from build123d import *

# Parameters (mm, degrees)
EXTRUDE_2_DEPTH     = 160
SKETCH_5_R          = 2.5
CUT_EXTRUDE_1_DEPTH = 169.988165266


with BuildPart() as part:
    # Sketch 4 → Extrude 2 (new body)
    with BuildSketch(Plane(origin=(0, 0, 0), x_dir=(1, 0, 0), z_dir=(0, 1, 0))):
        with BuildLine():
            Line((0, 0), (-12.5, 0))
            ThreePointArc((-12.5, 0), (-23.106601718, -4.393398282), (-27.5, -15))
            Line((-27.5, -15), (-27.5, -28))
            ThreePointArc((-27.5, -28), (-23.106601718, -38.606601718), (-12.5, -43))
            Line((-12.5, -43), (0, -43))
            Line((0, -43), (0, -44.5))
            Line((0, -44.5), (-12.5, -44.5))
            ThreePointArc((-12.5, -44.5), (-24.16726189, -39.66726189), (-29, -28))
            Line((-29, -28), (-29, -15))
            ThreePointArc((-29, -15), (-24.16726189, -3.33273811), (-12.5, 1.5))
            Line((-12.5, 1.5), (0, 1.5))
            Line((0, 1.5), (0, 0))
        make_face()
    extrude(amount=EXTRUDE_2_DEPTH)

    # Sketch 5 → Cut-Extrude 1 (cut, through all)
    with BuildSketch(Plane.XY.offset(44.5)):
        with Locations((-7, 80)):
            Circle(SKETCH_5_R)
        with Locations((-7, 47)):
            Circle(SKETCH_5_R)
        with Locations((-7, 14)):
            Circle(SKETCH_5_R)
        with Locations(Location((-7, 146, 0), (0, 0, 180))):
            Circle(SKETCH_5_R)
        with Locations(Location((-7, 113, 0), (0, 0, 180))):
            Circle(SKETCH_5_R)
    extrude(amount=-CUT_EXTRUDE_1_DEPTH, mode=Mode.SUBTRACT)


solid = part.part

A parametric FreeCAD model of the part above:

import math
import FreeCAD as App
import Part
import Sketcher

V = App.Vector

doc = App.newDocument("Part")
body = doc.addObject("PartDesign::Body", "Body")

# Sketch on XZ plane
sketch1 = doc.addObject("Sketcher::SketchObject", "Sketch")
body.addObject(sketch1)
sketch1.AttachmentSupport = (doc.XZ_Plane, [""])
sketch1.MapMode = "FlatFace"
sketch1.addGeometry([
    Part.LineSegment(V(-12.5, 0, 0), V(0, 0, 0)),  # 0
    Part.LineSegment(V(0, 0, 0), V(0, -1.5, 0)),  # 1
    Part.LineSegment(V(0, -1.5, 0), V(-12.5, -1.5, 0)),  # 2
    Part.ArcOfCircle(Part.Circle(V(-12.5, 15, 0), V(0, 0, 1), 16.5), math.radians(180), math.radians(270)),  # 3
    Part.LineSegment(V(-29, 15, 0), V(-29, 28, 0)),  # 4
    Part.ArcOfCircle(Part.Circle(V(-12.5, 28, 0), V(0, 0, 1), 16.5), math.radians(90), math.radians(180)),  # 5
    Part.LineSegment(V(-12.5, 44.5, 0), V(0, 44.5, 0)),  # 6
    Part.LineSegment(V(0, 44.5, 0), V(0, 43, 0)),  # 7
    Part.LineSegment(V(0, 43, 0), V(-12.5, 43, 0)),  # 8
    Part.ArcOfCircle(Part.Circle(V(-12.5, 28, 0), V(0, 0, 1), 15), math.radians(90), math.radians(180)),  # 9
    Part.LineSegment(V(-27.5, 28, 0), V(-27.5, 15, 0)),  # 10
    Part.ArcOfCircle(Part.Circle(V(-12.5, 15, 0), V(0, 0, 1), 15), math.radians(180), math.radians(270)),  # 11
], False)
sketch1.addConstraint([
    Sketcher.Constraint("Coincident", 0, 2, 1, 1),
    Sketcher.Constraint("Coincident", 1, 2, 2, 1),
    Sketcher.Constraint("Tangent", 2, 2, 3, 2),
    Sketcher.Constraint("Tangent", 3, 1, 4, 1),
    Sketcher.Constraint("Tangent", 4, 2, 5, 2),
    Sketcher.Constraint("Tangent", 5, 1, 6, 1),
    Sketcher.Constraint("Coincident", 6, 2, 7, 1),
    Sketcher.Constraint("Coincident", 7, 2, 8, 1),
    Sketcher.Constraint("Tangent", 8, 2, 9, 1),
    Sketcher.Constraint("Tangent", 9, 2, 10, 1),
    Sketcher.Constraint("Tangent", 10, 2, 11, 1),
    Sketcher.Constraint("Tangent", 11, 2, 0, 1),
    Sketcher.Constraint("Horizontal", 0),
    Sketcher.Constraint("Vertical", 1),
    Sketcher.Constraint("Horizontal", 2),
    Sketcher.Constraint("Vertical", 4),
    Sketcher.Constraint("Horizontal", 6),
    Sketcher.Constraint("Vertical", 7),
    Sketcher.Constraint("Horizontal", 8),
    Sketcher.Constraint("Vertical", 10),
    Sketcher.Constraint("Coincident", 0, 2, -1, 1),
    Sketcher.Constraint("Coincident", 9, 3, 5, 3),
    Sketcher.Constraint("Coincident", 11, 3, 3, 3),
    Sketcher.Constraint("Equal", 3, 5),
    Sketcher.Constraint("PointOnObject", 6, 2, -2),
    Sketcher.Constraint("Radius", 9, 15.0),
    Sketcher.Constraint("Radius", 3, 16.5),
    Sketcher.Constraint("DistanceY", 4, 1, 4, 2, 13.0),
    Sketcher.Constraint("DistanceX", 0, 1, 0, 2, 12.5),
])
pad1 = doc.addObject("PartDesign::Pad", "Pad")
body.addObject(pad1)
pad1.Profile = sketch1
pad1.Length = 160
pad1.Reversed = True

# Sketch on XY plane
sketch2 = doc.addObject("Sketcher::SketchObject", "Sketch001")
body.addObject(sketch2)
sketch2.AttachmentSupport = (doc.XY_Plane, [""])
sketch2.MapMode = "FlatFace"
sketch2.AttachmentOffset = App.Placement(V(0, 0, 44.5), App.Rotation())
sketch2.addGeometry([
    Part.Circle(V(-7, 80, 0), V(0, 0, 1), 2.5),  # 0
    Part.Circle(V(-7, 47, 0), V(0, 0, 1), 2.5),  # 1
    Part.Circle(V(-7, 14, 0), V(0, 0, 1), 2.5),  # 2
    Part.Circle(V(-7, 146, 0), V(0, 0, 1), 2.5),  # 3
    Part.Circle(V(-7, 113, 0), V(0, 0, 1), 2.5),  # 4
], False)
sketch2.addConstraint([
    Sketcher.Constraint("Equal", 0, 1),
    Sketcher.Constraint("Equal", 1, 2),
    Sketcher.Constraint("Equal", 2, 3),
    Sketcher.Constraint("Equal", 3, 4),
    Sketcher.Constraint("Vertical", 0, 3, 1, 3),
    Sketcher.Constraint("Vertical", 1, 3, 2, 3),
    Sketcher.Constraint("Vertical", 2, 3, 3, 3),
    Sketcher.Constraint("Vertical", 3, 3, 4, 3),
    Sketcher.Constraint("Diameter", 0, 5.0),
    Sketcher.Constraint("DistanceX", 0, 3, -1, 1, 7.0),
    Sketcher.Constraint("DistanceY", -1, 1, 0, 3, 80.0),
    Sketcher.Constraint("DistanceY", -1, 1, 1, 3, 47.0),
    Sketcher.Constraint("DistanceY", -1, 1, 2, 3, 14.0),
    Sketcher.Constraint("DistanceY", -1, 1, 3, 3, 146.0),
    Sketcher.Constraint("DistanceY", -1, 1, 4, 3, 113.0),
])
pocket1 = doc.addObject("PartDesign::Pocket", "Pocket")
body.addObject(pocket1)
pocket1.Profile = sketch2
pocket1.Type = "ThroughAll"

doc.recompute()
